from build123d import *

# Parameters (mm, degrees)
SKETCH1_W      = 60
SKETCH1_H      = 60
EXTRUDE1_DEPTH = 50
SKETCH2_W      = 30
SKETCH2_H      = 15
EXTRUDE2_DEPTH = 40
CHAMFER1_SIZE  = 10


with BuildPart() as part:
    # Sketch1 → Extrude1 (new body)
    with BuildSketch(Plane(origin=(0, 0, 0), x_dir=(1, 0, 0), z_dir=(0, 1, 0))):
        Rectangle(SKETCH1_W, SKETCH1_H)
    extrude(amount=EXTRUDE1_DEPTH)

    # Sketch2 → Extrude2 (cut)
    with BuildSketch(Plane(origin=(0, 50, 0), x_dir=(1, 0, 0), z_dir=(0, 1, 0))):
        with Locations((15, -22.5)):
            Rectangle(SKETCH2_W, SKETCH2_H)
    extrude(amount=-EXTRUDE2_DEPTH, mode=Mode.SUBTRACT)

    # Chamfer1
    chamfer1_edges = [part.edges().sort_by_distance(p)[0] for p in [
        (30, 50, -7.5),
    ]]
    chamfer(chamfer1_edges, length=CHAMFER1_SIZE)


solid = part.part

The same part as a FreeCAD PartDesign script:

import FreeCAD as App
import Part
import Sketcher


def edges_at(feature, points):
    """Names of the edges that pass closest to the given points."""
    edges = feature.Shape.Edges
    near = lambda p: min(range(len(edges)), key=lambda i: edges[i].distToShape(Part.Vertex(*p))[0])
    return sorted({f"Edge{near(p) + 1}" for p in points})

doc = App.newDocument("Part")
body = doc.addObject("PartDesign::Body", "Body")

# Sketch on XZ plane
sketch1 = body.newObject("Sketcher::SketchObject", "Sketch")
sketch1.AttachmentSupport = (doc.getObject("XZ_Plane"), [""])
sketch1.MapMode = "FlatFace"
sketch1.addGeometry([
    Part.LineSegment(App.Vector(-30, -30, 0), App.Vector(-30, 30, 0)),
    Part.LineSegment(App.Vector(-30, 30, 0), App.Vector(30, 30, 0)),
    Part.LineSegment(App.Vector(30, 30, 0), App.Vector(30, -30, 0)),
    Part.LineSegment(App.Vector(30, -30, 0), App.Vector(-30, -30, 0)),
], False)
sketch1.addConstraint([
    Sketcher.Constraint("Coincident", 0, 2, 1, 1),
    Sketcher.Constraint("Coincident", 1, 2, 2, 1),
    Sketcher.Constraint("Coincident", 2, 2, 3, 1),
    Sketcher.Constraint("Coincident", 3, 2, 0, 1),
    Sketcher.Constraint("Vertical", 0),
    Sketcher.Constraint("Horizontal", 1),
    Sketcher.Constraint("Vertical", 2),
    Sketcher.Constraint("Horizontal", 3),
    Sketcher.Constraint("Symmetric", 0, 2, 2, 2, -1, 1),
    Sketcher.Constraint("Equal", 3, 0),
    Sketcher.Constraint("DistanceX", 1, 1, 1, 2, 60.0),
])
pad1 = body.newObject("PartDesign::Pad", "Pad")
pad1.Profile = sketch1
pad1.Length = 50
pad1.Reversed = True

# Sketch on XZ plane
sketch2 = body.newObject("Sketcher::SketchObject", "Sketch001")
sketch2.AttachmentSupport = (doc.getObject("XZ_Plane"), [""])
sketch2.MapMode = "FlatFace"
sketch2.AttachmentOffset = App.Placement(App.Vector(0, 0, -50), App.Rotation())
sketch2.addGeometry([
    Part.LineSegment(App.Vector(0, 15, 0), App.Vector(0, 30, 0)),
    Part.LineSegment(App.Vector(0, 30, 0), App.Vector(30, 30, 0)),
    Part.LineSegment(App.Vector(30, 30, 0), App.Vector(30, 15, 0)),
    Part.LineSegment(App.Vector(30, 15, 0), App.Vector(0, 15, 0)),
], False)
sketch2.addConstraint([
    Sketcher.Constraint("Coincident", 0, 2, 1, 1),
    Sketcher.Constraint("Coincident", 1, 2, 2, 1),
    Sketcher.Constraint("Coincident", 2, 2, 3, 1),
    Sketcher.Constraint("Coincident", 3, 2, 0, 1),
    Sketcher.Constraint("Vertical", 0),
    Sketcher.Constraint("Horizontal", 1),
    Sketcher.Constraint("Vertical", 2),
    Sketcher.Constraint("Horizontal", 3),
    Sketcher.Constraint("PointOnObject", 0, 2, -2),
    Sketcher.Constraint("DistanceX", 1, 1, 1, 2, 30.0),
    Sketcher.Constraint("DistanceY", 0, 1, 0, 2, 15.0),
    Sketcher.Constraint("DistanceY", -1, 1, 0, 2, 30.0),
])
pocket1 = body.newObject("PartDesign::Pocket", "Pocket")
pocket1.Profile = sketch2
pocket1.Length = 40
pocket1.Reversed = True
doc.recompute()

chamfer = body.newObject("PartDesign::Chamfer", "Chamfer")
chamfer.Base = (pocket1, edges_at(pocket1, [(30, 50, -7.5)]))
chamfer.Size = 10

doc.recompute()
